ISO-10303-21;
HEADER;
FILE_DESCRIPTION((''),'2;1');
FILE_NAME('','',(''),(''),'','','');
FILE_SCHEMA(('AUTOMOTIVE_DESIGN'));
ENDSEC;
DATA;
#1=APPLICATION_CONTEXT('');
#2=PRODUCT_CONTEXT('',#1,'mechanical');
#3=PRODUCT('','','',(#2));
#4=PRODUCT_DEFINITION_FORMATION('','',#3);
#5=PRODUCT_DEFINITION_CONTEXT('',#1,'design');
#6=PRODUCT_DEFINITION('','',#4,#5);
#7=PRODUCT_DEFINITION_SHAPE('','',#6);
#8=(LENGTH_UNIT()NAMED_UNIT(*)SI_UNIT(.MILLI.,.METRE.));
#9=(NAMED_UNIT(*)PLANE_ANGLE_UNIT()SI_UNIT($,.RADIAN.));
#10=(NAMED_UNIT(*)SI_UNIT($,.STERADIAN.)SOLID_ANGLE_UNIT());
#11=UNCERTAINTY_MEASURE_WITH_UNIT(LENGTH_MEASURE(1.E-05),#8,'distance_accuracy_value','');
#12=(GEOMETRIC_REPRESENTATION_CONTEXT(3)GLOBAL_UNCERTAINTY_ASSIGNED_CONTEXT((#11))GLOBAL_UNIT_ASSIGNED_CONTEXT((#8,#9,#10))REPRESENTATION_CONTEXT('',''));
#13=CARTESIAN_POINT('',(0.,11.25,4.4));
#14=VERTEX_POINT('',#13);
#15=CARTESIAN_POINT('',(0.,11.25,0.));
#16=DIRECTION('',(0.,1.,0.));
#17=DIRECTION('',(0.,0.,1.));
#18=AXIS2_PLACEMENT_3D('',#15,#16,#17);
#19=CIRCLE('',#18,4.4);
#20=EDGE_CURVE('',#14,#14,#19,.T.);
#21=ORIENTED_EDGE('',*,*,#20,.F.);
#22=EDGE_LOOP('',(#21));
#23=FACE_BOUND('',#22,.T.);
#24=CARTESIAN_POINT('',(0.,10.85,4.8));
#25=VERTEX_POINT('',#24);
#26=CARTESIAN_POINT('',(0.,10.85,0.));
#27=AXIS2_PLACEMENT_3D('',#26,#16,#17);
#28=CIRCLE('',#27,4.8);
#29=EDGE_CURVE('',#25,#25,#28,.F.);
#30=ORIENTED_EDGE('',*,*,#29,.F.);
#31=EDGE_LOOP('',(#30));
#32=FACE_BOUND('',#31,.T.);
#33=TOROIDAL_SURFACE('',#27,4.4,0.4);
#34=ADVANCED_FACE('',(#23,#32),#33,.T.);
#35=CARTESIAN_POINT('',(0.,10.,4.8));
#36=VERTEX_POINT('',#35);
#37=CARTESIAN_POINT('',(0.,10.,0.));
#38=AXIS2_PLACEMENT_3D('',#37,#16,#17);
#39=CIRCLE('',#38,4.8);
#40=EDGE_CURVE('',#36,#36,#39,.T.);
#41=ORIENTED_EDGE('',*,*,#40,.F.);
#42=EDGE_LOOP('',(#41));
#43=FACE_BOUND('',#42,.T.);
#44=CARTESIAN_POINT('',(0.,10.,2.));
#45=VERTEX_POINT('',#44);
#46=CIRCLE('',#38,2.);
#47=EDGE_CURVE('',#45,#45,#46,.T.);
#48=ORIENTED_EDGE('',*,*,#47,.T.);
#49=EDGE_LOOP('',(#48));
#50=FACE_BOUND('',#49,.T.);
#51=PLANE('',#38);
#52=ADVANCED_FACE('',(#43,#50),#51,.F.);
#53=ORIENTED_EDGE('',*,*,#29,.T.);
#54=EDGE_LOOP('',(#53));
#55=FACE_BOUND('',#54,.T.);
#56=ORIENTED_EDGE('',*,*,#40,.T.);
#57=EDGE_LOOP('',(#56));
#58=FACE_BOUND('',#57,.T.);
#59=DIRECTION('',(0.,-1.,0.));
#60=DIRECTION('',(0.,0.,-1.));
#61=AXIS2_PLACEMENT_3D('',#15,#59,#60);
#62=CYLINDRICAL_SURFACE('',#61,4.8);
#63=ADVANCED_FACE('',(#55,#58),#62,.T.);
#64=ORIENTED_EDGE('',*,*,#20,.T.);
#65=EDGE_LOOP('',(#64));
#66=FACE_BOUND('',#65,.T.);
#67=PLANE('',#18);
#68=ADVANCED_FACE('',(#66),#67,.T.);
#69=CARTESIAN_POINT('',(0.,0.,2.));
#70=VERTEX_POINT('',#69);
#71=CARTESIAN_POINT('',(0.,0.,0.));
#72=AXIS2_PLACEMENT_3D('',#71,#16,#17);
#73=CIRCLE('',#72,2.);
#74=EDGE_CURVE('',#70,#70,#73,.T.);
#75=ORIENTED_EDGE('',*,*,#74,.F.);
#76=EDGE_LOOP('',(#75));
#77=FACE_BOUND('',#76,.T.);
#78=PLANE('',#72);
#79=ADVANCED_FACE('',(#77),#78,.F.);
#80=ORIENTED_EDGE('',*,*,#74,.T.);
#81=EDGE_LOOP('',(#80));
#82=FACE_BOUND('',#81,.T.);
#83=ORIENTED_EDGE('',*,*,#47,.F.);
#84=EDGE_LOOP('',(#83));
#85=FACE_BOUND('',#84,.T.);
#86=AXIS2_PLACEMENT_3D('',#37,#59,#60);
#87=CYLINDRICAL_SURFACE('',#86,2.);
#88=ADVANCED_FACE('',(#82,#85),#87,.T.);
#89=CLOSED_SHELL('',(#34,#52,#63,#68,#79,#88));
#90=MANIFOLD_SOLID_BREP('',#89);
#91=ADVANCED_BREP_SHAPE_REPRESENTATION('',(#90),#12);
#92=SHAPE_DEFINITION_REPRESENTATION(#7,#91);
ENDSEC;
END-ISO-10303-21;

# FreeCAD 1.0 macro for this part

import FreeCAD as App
import Part
import Sketcher
from FreeCAD import Vector
Q = App.Units.Quantity


def edges_at(feature, points):
    """Names of the edges that pass closest to the given points."""
    edges = feature.Shape.Edges
    near = lambda p: min(range(len(edges)), key=lambda i: edges[i].distToShape(Part.Vertex(*p))[0])
    return sorted({f"Edge{near(p) + 1}" for p in points})

doc = App.newDocument("Part")
params = doc.addObject("Spreadsheet::Sheet", "Params")
for row, (alias, value) in enumerate([
    ("sketch1_diameter", "4 mm"),
    ("pad1_length", "10 mm"),
    ("sketch2_diameter", "9.6 mm"),
    ("pad2_length", "1.25 mm"),
    ("fillet_radius", "0.4 mm"),
], start=1):
    params.set(f"A{row}", alias)
    params.set(f"B{row}", "=" + value)
    params.setAlias(f"B{row}", alias)

body = doc.addObject("PartDesign::Body", "Body")

# Sketch on XZ plane
sketch1 = body.newObject("Sketcher::SketchObject", "Sketch")
sketch1.AttachmentSupport = (doc.getObject("XZ_Plane"), [""])
sketch1.MapMode = "FlatFace"
sketch1.addGeometry(Part.Circle(Vector(0, 0, 0), Vector(0, 0, 1), 2), False)
sketch1.addConstraint([
    Sketcher.Constraint("Coincident", 0, 3, -1, 1),
    Sketcher.Constraint("Diameter", 0, Q("4 mm")),
])
sketch1.setExpression("Constraints[1]", "Params.sketch1_diameter")
pad1 = body.newObject("PartDesign::Pad", "Pad")
pad1.Profile = sketch1
pad1.setExpression("Length", "Params.pad1_length")
pad1.Reversed = True

# Sketch on XZ plane
sketch2 = body.newObject("Sketcher::SketchObject", "Sketch001")
sketch2.AttachmentSupport = (doc.getObject("XZ_Plane"), [""])
sketch2.MapMode = "FlatFace"
sketch2.AttachmentOffset = App.Placement(Vector(0, 0, -10), App.Rotation())
sketch2.addGeometry(Part.Circle(Vector(0, 0, 0), Vector(0, 0, 1), 4.8), False)
sketch2.addConstraint([
    Sketcher.Constraint("Coincident", 0, 3, -1, 1),
    Sketcher.Constraint("Diameter", 0, Q("9.6 mm")),
])
sketch2.setExpression("Constraints[1]", "Params.sketch2_diameter")
pad2 = body.newObject("PartDesign::Pad", "Pad001")
pad2.Profile = sketch2
pad2.setExpression("Length", "Params.pad2_length")
pad2.Reversed = True
doc.recompute()

fillet = body.newObject("PartDesign::Fillet", "Fillet")
fillet.Base = (pad2, edges_at(pad2, [(0, 11.25, -4.8)]))
fillet.setExpression("Radius", "Params.fillet_radius")

doc.recompute()
